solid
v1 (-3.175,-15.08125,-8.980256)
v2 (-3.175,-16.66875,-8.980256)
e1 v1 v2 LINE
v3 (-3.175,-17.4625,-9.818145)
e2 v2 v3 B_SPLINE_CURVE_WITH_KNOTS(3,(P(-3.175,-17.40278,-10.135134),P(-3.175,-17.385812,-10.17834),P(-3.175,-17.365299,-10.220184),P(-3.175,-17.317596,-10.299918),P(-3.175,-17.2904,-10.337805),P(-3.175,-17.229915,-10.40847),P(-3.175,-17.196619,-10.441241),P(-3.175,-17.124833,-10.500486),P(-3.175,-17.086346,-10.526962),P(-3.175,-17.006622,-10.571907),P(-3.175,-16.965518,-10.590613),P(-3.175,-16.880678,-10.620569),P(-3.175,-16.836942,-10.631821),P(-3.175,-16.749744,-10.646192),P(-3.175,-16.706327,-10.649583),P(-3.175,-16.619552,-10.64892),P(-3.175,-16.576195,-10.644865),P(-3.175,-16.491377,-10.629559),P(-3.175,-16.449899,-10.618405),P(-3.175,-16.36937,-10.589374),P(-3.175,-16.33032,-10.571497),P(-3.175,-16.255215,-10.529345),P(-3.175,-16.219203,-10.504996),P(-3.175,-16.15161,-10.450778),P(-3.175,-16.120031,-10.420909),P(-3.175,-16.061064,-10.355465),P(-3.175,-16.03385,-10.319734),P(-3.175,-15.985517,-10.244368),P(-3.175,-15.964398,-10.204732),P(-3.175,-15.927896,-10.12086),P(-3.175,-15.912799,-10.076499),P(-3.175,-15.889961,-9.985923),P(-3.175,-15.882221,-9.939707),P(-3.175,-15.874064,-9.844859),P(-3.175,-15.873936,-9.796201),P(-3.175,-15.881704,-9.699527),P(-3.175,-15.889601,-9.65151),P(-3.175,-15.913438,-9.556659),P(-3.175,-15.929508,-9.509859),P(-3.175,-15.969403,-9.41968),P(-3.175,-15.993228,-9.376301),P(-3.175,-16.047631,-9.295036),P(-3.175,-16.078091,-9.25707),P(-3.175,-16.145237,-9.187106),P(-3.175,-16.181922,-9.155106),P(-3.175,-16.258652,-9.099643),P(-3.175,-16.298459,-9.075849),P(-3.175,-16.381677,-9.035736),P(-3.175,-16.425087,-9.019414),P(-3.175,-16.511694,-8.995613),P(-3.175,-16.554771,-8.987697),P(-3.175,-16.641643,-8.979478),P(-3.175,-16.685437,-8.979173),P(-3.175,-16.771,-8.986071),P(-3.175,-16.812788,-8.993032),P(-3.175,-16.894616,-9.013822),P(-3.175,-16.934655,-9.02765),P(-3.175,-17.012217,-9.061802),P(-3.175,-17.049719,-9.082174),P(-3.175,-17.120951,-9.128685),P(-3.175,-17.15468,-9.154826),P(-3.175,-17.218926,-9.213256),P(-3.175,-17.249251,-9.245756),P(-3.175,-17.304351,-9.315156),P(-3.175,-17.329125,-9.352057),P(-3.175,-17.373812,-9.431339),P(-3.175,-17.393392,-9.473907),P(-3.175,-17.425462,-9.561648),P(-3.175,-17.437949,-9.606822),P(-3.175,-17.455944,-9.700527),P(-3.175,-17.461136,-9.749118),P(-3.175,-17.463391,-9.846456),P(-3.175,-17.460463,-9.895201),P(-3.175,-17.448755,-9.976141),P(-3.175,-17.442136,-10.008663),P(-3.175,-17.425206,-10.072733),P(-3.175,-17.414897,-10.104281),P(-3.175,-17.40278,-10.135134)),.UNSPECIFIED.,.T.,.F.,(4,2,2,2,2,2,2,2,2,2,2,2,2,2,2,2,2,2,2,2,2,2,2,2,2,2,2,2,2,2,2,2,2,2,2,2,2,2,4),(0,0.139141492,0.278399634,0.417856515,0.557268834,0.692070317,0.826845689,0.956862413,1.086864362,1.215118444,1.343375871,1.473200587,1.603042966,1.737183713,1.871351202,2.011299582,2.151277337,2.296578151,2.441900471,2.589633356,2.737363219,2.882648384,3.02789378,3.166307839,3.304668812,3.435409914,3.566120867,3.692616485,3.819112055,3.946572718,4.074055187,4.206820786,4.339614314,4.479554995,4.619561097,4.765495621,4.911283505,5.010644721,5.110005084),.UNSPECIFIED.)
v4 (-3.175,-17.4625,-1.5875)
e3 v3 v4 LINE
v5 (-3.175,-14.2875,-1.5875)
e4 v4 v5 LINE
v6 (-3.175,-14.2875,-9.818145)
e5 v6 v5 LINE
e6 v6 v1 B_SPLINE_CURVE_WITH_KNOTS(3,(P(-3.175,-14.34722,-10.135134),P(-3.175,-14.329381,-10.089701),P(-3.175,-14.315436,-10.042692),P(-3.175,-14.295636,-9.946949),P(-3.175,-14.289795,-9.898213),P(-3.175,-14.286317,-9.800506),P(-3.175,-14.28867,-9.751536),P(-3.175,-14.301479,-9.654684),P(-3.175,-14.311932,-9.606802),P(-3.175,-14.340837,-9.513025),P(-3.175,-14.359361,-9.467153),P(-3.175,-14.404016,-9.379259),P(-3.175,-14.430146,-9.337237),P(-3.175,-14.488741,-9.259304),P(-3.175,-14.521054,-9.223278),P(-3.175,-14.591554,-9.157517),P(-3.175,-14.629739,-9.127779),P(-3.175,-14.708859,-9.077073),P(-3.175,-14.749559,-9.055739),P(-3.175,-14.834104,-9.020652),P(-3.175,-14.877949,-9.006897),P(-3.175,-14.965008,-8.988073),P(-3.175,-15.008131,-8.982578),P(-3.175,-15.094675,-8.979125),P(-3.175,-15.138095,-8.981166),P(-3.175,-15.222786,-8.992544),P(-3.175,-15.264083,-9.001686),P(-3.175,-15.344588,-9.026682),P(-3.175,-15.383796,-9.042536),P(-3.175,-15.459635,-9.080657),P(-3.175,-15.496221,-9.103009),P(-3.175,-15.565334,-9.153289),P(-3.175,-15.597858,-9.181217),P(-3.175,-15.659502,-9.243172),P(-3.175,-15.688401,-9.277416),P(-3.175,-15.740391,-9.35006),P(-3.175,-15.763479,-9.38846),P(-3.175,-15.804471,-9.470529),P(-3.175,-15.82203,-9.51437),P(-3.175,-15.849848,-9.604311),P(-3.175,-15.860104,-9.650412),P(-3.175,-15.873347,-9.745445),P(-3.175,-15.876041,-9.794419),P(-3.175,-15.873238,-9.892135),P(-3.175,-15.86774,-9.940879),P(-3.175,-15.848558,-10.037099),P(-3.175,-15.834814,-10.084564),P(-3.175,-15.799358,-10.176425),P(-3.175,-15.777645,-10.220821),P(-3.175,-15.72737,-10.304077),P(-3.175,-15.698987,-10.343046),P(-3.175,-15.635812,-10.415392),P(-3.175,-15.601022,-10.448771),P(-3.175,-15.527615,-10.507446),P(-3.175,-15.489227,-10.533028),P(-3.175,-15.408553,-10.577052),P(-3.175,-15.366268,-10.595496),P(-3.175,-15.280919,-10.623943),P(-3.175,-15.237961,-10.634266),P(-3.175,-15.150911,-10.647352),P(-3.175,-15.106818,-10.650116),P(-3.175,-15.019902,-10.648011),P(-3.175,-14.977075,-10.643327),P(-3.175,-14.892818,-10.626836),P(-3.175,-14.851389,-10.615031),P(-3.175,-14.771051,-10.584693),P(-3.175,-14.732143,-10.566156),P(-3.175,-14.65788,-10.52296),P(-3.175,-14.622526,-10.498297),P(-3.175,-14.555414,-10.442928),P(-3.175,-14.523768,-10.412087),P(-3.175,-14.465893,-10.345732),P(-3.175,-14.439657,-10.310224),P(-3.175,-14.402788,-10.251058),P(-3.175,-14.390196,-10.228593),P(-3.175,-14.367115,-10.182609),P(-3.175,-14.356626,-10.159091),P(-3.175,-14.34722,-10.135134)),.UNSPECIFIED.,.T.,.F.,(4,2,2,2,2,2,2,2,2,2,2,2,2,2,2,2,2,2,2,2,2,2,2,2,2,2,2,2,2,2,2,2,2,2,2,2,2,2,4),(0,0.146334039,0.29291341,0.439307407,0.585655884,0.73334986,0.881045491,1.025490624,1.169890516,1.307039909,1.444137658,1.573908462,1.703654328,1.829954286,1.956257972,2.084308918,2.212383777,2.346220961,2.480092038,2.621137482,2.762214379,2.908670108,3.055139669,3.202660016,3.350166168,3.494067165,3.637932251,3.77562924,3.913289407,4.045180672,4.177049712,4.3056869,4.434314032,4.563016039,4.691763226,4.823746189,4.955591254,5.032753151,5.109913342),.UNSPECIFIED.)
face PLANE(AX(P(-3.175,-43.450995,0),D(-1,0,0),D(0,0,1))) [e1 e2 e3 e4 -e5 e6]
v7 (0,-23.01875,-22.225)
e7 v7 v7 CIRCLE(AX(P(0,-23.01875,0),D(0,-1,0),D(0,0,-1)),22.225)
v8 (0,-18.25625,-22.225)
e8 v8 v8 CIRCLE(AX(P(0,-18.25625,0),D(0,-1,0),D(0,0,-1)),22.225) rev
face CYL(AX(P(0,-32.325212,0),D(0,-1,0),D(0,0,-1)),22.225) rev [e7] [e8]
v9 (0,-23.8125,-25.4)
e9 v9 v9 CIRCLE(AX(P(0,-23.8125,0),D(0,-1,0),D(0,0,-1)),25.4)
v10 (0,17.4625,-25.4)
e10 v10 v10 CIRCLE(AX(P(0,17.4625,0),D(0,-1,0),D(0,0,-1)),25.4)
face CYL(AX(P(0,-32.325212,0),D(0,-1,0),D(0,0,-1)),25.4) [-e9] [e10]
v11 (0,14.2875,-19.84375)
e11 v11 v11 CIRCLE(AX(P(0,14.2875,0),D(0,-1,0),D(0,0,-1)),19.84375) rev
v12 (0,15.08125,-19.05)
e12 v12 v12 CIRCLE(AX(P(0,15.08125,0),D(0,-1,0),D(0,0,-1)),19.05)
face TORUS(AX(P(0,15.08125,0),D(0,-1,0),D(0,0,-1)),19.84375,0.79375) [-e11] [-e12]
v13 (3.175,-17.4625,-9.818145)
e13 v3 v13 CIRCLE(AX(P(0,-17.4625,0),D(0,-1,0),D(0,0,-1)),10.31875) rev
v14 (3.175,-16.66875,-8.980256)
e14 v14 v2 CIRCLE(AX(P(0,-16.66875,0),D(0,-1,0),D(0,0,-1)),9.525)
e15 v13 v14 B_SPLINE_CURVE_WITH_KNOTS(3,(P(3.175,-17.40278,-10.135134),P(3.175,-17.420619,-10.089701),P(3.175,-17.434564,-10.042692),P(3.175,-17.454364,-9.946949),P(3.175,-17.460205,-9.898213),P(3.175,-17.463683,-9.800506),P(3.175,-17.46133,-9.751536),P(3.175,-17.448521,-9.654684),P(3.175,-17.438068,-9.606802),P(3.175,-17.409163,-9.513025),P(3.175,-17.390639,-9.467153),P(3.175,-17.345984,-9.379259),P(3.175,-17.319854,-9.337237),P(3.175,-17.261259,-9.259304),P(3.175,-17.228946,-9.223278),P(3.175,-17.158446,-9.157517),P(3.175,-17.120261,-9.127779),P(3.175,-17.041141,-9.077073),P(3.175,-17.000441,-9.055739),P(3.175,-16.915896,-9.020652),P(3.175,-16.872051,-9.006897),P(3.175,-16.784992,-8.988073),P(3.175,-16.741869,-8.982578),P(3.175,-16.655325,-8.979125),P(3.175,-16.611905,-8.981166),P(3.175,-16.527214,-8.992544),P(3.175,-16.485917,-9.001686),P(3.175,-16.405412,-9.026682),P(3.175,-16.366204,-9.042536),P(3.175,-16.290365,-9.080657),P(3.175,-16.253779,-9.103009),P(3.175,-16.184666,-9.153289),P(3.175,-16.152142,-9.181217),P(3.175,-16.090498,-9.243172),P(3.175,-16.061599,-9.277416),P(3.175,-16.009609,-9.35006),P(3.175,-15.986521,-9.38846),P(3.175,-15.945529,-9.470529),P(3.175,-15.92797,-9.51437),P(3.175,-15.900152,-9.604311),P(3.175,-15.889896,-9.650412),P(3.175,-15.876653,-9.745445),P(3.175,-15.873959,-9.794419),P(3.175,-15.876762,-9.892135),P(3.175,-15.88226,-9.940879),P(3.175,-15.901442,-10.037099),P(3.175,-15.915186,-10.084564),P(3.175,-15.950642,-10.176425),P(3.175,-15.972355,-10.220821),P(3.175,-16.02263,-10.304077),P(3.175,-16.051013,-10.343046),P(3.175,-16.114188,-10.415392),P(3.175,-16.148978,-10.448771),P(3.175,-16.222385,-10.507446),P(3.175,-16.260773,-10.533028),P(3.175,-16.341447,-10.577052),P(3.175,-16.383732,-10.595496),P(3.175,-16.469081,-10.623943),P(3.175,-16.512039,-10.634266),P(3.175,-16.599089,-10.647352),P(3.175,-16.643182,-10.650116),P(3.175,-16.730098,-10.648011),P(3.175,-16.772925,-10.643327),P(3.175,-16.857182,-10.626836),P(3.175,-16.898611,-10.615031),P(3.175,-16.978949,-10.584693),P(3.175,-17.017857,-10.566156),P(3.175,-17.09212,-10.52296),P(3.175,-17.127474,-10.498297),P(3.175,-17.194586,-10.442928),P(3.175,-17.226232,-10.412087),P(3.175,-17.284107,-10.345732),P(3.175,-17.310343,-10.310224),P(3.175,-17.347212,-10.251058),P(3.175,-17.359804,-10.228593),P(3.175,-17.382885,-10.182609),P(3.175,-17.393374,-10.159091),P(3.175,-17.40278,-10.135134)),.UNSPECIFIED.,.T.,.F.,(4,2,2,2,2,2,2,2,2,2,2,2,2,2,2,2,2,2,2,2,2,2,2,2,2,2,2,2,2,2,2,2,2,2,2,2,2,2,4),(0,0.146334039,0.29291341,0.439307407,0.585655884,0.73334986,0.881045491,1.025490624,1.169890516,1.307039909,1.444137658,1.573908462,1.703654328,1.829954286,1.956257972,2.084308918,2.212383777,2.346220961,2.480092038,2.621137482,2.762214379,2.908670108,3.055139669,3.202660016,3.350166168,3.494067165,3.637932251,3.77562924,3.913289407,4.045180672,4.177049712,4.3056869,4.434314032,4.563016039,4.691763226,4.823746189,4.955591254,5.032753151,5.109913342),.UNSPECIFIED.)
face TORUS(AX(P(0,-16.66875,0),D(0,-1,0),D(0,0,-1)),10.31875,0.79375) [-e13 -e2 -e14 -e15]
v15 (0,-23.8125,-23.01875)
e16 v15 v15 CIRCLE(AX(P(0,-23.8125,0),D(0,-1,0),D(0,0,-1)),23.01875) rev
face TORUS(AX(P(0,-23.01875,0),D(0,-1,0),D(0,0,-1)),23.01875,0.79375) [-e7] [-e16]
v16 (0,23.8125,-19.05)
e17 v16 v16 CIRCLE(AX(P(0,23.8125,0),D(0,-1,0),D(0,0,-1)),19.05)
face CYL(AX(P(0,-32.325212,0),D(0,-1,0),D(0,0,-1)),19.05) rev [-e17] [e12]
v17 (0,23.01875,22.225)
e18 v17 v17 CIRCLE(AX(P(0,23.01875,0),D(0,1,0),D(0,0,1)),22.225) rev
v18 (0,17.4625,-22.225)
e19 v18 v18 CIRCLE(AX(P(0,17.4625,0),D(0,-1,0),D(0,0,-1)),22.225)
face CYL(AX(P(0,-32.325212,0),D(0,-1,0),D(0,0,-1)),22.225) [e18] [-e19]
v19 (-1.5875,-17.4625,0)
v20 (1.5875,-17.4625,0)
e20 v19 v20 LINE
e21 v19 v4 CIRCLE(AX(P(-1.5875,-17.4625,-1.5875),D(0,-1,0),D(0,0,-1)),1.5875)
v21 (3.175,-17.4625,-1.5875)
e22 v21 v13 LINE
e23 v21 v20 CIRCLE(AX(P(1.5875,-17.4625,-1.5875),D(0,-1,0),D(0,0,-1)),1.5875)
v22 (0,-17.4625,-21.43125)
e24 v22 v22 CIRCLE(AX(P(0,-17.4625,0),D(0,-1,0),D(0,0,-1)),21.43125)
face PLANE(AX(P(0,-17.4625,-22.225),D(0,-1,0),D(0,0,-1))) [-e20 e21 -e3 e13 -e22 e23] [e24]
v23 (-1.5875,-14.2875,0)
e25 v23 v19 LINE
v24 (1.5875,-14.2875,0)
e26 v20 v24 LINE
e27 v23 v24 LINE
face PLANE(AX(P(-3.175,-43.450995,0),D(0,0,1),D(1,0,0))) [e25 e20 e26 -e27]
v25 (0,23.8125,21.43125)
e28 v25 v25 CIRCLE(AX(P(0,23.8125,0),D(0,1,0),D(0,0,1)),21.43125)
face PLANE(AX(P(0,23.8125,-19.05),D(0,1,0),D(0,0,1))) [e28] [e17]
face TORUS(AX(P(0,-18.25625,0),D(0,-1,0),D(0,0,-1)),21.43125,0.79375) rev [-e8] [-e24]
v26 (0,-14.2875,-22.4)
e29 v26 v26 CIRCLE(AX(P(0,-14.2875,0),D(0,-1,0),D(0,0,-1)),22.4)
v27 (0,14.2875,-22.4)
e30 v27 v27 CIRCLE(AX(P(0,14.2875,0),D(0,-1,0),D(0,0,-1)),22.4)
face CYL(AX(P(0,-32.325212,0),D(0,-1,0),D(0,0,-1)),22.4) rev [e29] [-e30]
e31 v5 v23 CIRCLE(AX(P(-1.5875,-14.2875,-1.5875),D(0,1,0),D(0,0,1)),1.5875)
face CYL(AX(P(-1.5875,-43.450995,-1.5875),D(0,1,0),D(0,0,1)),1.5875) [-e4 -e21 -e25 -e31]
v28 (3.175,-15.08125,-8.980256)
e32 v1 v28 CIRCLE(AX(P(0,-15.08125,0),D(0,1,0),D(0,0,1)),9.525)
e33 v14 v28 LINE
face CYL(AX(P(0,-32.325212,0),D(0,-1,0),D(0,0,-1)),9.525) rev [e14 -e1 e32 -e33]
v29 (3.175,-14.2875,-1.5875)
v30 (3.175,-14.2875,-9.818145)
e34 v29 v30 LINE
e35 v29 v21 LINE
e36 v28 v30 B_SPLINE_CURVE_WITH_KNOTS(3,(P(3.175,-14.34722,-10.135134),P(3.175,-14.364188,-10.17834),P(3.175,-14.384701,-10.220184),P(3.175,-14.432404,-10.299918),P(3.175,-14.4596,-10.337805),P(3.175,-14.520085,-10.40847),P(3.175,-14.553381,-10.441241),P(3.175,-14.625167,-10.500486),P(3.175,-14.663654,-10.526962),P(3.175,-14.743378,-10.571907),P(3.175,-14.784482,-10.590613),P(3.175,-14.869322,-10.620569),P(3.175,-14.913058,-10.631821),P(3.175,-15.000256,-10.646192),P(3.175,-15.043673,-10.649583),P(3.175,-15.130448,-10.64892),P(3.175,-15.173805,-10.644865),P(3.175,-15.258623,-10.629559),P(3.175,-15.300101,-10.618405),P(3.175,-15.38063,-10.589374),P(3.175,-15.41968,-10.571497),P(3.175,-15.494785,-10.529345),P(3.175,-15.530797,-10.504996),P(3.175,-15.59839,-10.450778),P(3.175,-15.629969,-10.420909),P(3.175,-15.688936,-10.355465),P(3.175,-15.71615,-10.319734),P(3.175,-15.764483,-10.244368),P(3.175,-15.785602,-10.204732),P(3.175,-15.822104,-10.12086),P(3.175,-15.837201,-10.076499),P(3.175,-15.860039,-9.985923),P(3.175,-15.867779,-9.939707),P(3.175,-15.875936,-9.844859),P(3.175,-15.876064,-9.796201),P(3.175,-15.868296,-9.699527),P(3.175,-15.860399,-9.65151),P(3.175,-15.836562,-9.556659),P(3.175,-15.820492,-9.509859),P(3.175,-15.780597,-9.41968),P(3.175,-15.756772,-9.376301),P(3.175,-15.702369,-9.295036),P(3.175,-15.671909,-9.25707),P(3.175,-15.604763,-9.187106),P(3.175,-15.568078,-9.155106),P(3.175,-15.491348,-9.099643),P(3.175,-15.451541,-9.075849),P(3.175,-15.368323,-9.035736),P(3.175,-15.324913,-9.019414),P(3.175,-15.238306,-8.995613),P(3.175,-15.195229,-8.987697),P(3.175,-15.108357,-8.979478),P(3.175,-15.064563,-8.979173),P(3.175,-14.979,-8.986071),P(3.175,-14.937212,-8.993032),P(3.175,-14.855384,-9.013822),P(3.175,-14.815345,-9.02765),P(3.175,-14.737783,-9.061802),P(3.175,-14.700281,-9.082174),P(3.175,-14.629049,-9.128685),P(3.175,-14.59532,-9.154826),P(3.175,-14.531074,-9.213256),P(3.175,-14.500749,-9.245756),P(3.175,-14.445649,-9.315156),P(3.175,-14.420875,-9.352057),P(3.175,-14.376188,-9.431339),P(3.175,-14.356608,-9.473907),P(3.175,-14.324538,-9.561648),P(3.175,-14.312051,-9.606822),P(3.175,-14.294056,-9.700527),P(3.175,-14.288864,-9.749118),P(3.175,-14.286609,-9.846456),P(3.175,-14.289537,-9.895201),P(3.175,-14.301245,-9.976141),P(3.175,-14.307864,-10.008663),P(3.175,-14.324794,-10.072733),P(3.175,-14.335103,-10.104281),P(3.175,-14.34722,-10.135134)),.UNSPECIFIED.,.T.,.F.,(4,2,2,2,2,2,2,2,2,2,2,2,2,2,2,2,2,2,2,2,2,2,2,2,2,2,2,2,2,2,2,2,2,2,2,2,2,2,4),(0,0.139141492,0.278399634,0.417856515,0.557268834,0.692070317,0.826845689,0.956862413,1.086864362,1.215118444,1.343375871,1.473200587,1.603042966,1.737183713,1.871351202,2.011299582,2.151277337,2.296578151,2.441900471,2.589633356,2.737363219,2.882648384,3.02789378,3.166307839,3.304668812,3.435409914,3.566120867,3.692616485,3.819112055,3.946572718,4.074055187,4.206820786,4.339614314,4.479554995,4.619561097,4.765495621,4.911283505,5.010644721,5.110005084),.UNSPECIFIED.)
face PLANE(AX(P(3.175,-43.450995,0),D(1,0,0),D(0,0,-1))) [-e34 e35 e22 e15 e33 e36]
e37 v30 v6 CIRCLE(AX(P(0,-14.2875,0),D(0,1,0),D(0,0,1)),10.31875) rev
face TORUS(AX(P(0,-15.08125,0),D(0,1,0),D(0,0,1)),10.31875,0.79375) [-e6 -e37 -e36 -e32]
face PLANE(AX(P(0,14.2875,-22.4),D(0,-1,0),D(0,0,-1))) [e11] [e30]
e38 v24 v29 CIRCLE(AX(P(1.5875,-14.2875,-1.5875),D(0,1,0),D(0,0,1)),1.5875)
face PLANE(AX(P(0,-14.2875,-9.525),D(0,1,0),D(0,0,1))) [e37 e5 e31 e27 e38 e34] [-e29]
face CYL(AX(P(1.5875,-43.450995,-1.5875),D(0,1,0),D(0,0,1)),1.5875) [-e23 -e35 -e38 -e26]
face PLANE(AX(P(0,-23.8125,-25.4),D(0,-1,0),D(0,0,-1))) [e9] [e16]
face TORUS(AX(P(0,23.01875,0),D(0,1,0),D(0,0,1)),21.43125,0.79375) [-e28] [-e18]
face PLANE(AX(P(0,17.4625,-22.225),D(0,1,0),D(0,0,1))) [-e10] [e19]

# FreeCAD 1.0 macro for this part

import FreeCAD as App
import Part
import Sketcher

V = App.Vector
Q = App.Units.Quantity


def edges_at(feature, points):
    """Names of the edges that pass closest to the given points."""
    edges = feature.Shape.Edges
    near = lambda p: min(range(len(edges)), key=lambda i: edges[i].distToShape(Part.Vertex(*p))[0])
    return sorted({f"Edge{near(p) + 1}" for p in points})

doc = App.newDocument("Part")
body = doc.addObject("PartDesign::Body", "Body")

sketch1 = doc.addObject("Sketcher::SketchObject", "Sketch")
body.addObject(sketch1)
sketch1.AttachmentSupport = (doc.YZ_Plane, [""])
sketch1.MapMode = "FlatFace"
sketch1.addGeometry([
    Part.LineSegment(V(17.4625, -22.225, 0), V(23.8125, -22.225, 0)),
    Part.LineSegment(V(23.8125, -22.225, 0), V(23.8125, -19.05, 0)),
    Part.LineSegment(V(23.8125, -19.05, 0), V(14.2875, -19.05, 0)),
    Part.LineSegment(V(14.2875, -19.05, 0), V(14.2875, -22.4, 0)),
    Part.LineSegment(V(14.2875, -22.4, 0), V(-14.2875, -22.4, 0)),
    Part.LineSegment(V(-14.2875, -22.4, 0), V(-14.2875, -9.525, 0)),
    Part.LineSegment(V(-14.2875, -9.525, 0), V(-17.4625, -9.525, 0)),
    Part.LineSegment(V(-17.4625, -9.525, 0), V(-17.4625, -22.225, 0)),
    Part.LineSegment(V(-17.4625, -22.225, 0), V(-23.8125, -22.225, 0)),
    Part.LineSegment(V(-23.8125, -22.225, 0), V(-23.8125, -25.4, 0)),
    Part.LineSegment(V(-23.8125, -25.4, 0), V(17.4625, -25.4, 0)),
    Part.LineSegment(V(17.4625, -25.4, 0), V(17.4625, -22.225, 0)),
], False)
sketch1.addConstraint([
    Sketcher.Constraint("Coincident", 0, 2, 1, 1),
    Sketcher.Constraint("Coincident", 1, 2, 2, 1),
    Sketcher.Constraint("Coincident", 2, 2, 3, 1),
    Sketcher.Constraint("Coincident", 3, 2, 4, 1),
    Sketcher.Constraint("Coincident", 4, 2, 5, 1),
    Sketcher.Constraint("Coincident", 5, 2, 6, 1),
    Sketcher.Constraint("Coincident", 6, 2, 7, 1),
    Sketcher.Constraint("Coincident", 7, 2, 8, 1),
    Sketcher.Constraint("Coincident", 8, 2, 9, 1),
    Sketcher.Constraint("Coincident", 9, 2, 10, 1),
    Sketcher.Constraint("Coincident", 10, 2, 11, 1),
    Sketcher.Constraint("Coincident", 11, 2, 0, 1),
    Sketcher.Constraint("Horizontal", 0),
    Sketcher.Constraint("Vertical", 1),
    Sketcher.Constraint("Horizontal", 2),
    Sketcher.Constraint("Vertical", 3),
    Sketcher.Constraint("Horizontal", 4),
    Sketcher.Constraint("Vertical", 5),
    Sketcher.Constraint("Horizontal", 6),
    Sketcher.Constraint("Vertical", 7),
    Sketcher.Constraint("Horizontal", 8),
    Sketcher.Constraint("Vertical", 9),
    Sketcher.Constraint("Horizontal", 10),
    Sketcher.Constraint("Vertical", 11),
    Sketcher.Constraint("Symmetric", 0, 2, 8, 2, -2),
    Sketcher.Constraint("Equal", 0, 8),
    Sketcher.Constraint("Equal", 6, 1),
    Sketcher.Constraint("Equal", 1, 9),
    Sketcher.Constraint("DistanceY", 7, 2, 7, 1, Q("0.5 in")),
    Sketcher.Constraint("DistanceY", 9, 2, -1, 1, Q("1 in")),
    Sketcher.Constraint("DistanceX", 0, 1, 0, 2, Q("0.25 in")),
    Sketcher.Constraint("DistanceX", 4, 2, 0, 2, Q("1.5 in")),
    Sketcher.Constraint("DistanceX", 8, 2, 3, 2, Q("1.5 in")),
    Sketcher.Constraint("DistanceX", 2, 2, 2, 1, Q("0.375 in")),
    Sketcher.Constraint("DistanceY", 3, 2, 3, 1, 3.35),
])
revolution = doc.addObject("PartDesign::Revolution", "Revolution")
body.addObject(revolution)
revolution.Profile = sketch1
revolution.ReferenceAxis = (sketch1, ["H_Axis"])
revolution.Angle = 360
doc.recompute()

fillet = doc.addObject("PartDesign::Fillet", "Fillet")
body.addObject(fillet)
fillet.Base = (revolution, edges_at(revolution, [
    (0, -14.287, 9.525),
    (0, -17.462, 9.525),
    (0, -17.462, 22.225),
    (0, -23.812, 22.225),
    (0, 23.812, 22.225),
    (0, 14.287, 19.05),
]))
fillet.Radius = Q("0.03125 in")

sketch2 = doc.addObject("Sketcher::SketchObject", "Sketch001")
body.addObject(sketch2)
sketch2.AttachmentSupport = (doc.XZ_Plane, [""])
sketch2.MapMode = "FlatFace"
sketch2.AttachmentOffset = App.Placement(V(0, 0, 0.5625 * 25.4), App.Rotation())
sketch2.addGeometry([
    Part.LineSegment(V(-3.175, -25.200781, 0), V(-3.175, 0, 0)),
    Part.LineSegment(V(-3.175, 0, 0), V(3.175, 0, 0)),
    Part.LineSegment(V(3.175, 0, 0), V(3.175, -25.200781, 0)),
    Part.LineSegment(V(3.175, -25.200781, 0), V(-3.175, -25.200781, 0)),
], False)
sketch2.addConstraint([
    Sketcher.Constraint("Coincident", 0, 2, 1, 1),
    Sketcher.Constraint("Coincident", 1, 2, 2, 1),
    Sketcher.Constraint("Coincident", 2, 2, 3, 1),
    Sketcher.Constraint("Coincident", 3, 2, 0, 1),
    Sketcher.Constraint("Vertical", 0),
    Sketcher.Constraint("Horizontal", 1),
    Sketcher.Constraint("Vertical", 2),
    Sketcher.Constraint("Horizontal", 3),
    Sketcher.Constraint("Symmetric", 0, 2, 1, 2, -1, 1),
    Sketcher.Constraint("DistanceX", 1, 1, 1, 2, Q("0.25 in")),
    Sketcher.Constraint("DistanceY", 0, 1, 0, 2, 25.200781),
])
pad1 = doc.addObject("PartDesign::Pad", "Pad")
body.addObject(pad1)
pad1.Profile = sketch2
pad1.Length = Q("0.125 in")
doc.recompute()

fillet2 = doc.addObject("PartDesign::Fillet", "Fillet001")
body.addObject(fillet2)
fillet2.Base = (pad1, edges_at(pad1, [(3.175, -15.875, 0), (-3.175, -15.875, 0)]))
fillet2.Radius = Q("0.0625 in")

doc.recompute()
